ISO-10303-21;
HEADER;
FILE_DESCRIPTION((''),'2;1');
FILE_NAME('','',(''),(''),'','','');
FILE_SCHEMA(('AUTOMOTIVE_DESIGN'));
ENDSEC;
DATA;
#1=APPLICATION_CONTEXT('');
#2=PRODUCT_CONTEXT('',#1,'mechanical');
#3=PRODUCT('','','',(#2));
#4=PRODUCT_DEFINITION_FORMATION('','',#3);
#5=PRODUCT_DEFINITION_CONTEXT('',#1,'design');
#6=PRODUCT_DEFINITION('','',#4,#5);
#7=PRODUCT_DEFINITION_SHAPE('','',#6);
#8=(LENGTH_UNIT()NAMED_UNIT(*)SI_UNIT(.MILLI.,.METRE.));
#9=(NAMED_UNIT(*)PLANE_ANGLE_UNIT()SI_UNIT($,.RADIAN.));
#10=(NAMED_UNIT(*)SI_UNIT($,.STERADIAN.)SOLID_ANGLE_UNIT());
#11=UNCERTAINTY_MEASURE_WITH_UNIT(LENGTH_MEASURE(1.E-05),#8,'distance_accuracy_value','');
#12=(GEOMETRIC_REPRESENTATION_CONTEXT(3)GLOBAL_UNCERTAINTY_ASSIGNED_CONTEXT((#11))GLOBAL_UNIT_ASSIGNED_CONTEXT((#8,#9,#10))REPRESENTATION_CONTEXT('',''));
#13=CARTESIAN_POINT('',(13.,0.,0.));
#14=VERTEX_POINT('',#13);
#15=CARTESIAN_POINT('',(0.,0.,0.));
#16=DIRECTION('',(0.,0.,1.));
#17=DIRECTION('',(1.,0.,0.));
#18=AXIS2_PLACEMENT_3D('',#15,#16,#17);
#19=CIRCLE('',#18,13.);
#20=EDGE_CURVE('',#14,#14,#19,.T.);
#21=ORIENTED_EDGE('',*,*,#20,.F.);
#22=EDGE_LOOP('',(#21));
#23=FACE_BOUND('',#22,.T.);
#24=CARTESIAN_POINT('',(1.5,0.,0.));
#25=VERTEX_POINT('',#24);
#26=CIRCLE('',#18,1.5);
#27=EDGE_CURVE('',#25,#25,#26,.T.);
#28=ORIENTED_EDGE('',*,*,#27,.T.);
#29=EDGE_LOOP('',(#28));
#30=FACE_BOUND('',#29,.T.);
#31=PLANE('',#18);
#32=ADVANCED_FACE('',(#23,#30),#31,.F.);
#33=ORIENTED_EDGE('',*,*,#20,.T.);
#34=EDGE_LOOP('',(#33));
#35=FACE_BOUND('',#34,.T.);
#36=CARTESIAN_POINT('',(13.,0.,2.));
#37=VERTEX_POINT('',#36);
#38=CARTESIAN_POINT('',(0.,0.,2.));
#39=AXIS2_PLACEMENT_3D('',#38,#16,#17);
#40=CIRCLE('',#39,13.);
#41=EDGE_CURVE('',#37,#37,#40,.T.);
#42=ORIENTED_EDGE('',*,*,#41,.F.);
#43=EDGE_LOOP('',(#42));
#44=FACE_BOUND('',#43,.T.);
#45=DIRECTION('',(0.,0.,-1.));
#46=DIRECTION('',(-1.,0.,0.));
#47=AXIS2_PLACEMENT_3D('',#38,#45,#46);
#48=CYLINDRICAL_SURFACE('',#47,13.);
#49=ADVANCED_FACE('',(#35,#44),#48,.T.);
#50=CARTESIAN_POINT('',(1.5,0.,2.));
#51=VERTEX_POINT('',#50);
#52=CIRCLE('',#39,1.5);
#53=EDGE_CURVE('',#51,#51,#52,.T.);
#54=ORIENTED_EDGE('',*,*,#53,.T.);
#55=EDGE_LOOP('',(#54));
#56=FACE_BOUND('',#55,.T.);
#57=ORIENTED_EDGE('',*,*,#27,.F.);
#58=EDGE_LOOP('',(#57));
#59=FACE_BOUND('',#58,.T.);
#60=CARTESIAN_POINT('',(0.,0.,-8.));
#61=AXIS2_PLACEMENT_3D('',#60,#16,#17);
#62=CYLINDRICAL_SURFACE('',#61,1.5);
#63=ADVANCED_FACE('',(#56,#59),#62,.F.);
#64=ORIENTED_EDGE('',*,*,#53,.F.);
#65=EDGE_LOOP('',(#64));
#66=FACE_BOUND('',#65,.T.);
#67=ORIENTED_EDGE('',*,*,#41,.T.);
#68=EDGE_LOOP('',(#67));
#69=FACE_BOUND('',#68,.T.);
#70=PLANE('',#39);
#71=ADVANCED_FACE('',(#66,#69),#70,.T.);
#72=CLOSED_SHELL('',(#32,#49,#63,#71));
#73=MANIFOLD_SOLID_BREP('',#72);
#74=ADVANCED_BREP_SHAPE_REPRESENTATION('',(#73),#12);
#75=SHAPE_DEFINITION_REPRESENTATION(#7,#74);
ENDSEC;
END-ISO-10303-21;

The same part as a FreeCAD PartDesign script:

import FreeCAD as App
import Part
import Sketcher

V = App.Vector

doc = App.newDocument("Part")
body = doc.addObject("PartDesign::Body", "Body")

sketch1 = body.newObject("Sketcher::SketchObject", "Sketch")
sketch1.AttachmentSupport = (doc.getObject("XY_Plane"), [""])
sketch1.MapMode = "FlatFace"
sketch1.addGeometry(Part.Circle(V(0, 0, 0), V(0, 0, 1), 13), False)
sketch1.addConstraint([
    Sketcher.Constraint("Coincident", 0, 3, -1, 1),
    Sketcher.Constraint("Diameter", 0, 26.0),
])
pad1 = body.newObject("PartDesign::Pad", "Pad")
pad1.Profile = sketch1
pad1.Length = 2

sketch2 = body.newObject("Sketcher::SketchObject", "Sketch001")
sketch2.AttachmentSupport = (doc.getObject("XY_Plane"), [""])
sketch2.MapMode = "FlatFace"
sketch2.AttachmentOffset = App.Placement(V(0, 0, 2), App.Rotation())
sketch2.addGeometry(Part.Circle(V(0, 0, 0), V(0, 0, 1), 1.5), False)
sketch2.addConstraint([
    Sketcher.Constraint("Coincident", 0, 3, -1, 1),
    Sketcher.Constraint("Diameter", 0, 3.0),
])
pocket1 = body.newObject("PartDesign::Pocket", "Pocket")
pocket1.Profile = sketch2
pocket1.Length = 10

doc.recompute()
